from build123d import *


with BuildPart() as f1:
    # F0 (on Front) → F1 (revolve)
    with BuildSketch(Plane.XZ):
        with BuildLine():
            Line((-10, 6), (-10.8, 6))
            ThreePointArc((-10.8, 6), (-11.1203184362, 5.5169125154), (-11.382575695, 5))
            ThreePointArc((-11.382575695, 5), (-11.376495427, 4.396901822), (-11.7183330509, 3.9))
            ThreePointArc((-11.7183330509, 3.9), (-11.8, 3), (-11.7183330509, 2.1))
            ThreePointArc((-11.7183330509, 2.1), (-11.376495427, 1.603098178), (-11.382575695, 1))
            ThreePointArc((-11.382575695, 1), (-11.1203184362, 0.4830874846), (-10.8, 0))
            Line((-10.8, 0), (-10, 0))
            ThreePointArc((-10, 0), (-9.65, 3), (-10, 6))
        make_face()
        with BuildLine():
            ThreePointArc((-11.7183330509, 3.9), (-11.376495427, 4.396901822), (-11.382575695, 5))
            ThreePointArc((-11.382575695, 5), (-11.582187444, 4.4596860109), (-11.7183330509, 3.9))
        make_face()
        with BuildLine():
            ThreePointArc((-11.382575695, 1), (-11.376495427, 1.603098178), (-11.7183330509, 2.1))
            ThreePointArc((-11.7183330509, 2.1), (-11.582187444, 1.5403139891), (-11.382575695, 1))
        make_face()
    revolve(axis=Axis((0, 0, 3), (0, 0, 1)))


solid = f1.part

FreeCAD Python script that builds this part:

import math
import FreeCAD as App
import Part
import Sketcher

V = App.Vector

doc = App.newDocument("Part")
body = doc.addObject("PartDesign::Body", "Body")

# Sketch on XZ plane
sketch1 = doc.addObject("Sketcher::SketchObject", "Sketch")
body.addObject(sketch1)
sketch1.AttachmentSupport = (doc.XZ_Plane, [""])
sketch1.MapMode = "FlatFace"
sketch1.addGeometry([
    Part.LineSegment(V(-10, 6, 0), V(-10.8, 6, 0)),  # 0
    Part.ArcOfCircle(Part.Circle(V(-6.8, 3, 0), V(0, 0, 1), 5), math.radians(143.13), math.radians(156.42)),  # 1
    Part.ArcOfCircle(Part.Circle(V(-6.8, 3, 0), V(0, 0, 1), 5), math.radians(156.42), math.radians(169.63)),  # 2
    Part.ArcOfCircle(Part.Circle(V(-6.8, 3, 0), V(0, 0, 1), 5), math.radians(170), math.radians(190)),  # 3
    Part.ArcOfCircle(Part.Circle(V(-6.8, 3, 0), V(0, 0, 1), 5), math.radians(-169.63), math.radians(-156.42)),  # 4
    Part.ArcOfCircle(Part.Circle(V(-6.8, 3, 0), V(0, 0, 1), 5), math.radians(-156.42), math.radians(-143.13)),  # 5
    Part.LineSegment(V(-10.8, 0, 0), V(-10, 0, 0)),  # 6
    Part.ArcOfCircle(Part.Circle(V(-22.7, 3, 0), V(0, 0, 1), 13), math.radians(-13), math.radians(13)),  # 7
], False)
sketch1.addConstraint([
    Sketcher.Constraint("Coincident", 0, 2, 1, 1),
    Sketcher.Constraint("Tangent", 1, 2, 2, 1),
    Sketcher.Constraint("Tangent", 2, 2, 3, 1),
    Sketcher.Constraint("Tangent", 3, 2, 4, 1),
    Sketcher.Constraint("Tangent", 4, 2, 5, 1),
    Sketcher.Constraint("Coincident", 5, 2, 6, 1),
    Sketcher.Constraint("Coincident", 6, 2, 7, 1),
    Sketcher.Constraint("Coincident", 7, 2, 0, 1),
    Sketcher.Constraint("Horizontal", 0),
    Sketcher.Constraint("Horizontal", 6),
    Sketcher.Constraint("Coincident", 3, 3, 1, 3),
    Sketcher.Constraint("Coincident", 5, 3, 1, 3),
    Sketcher.Constraint("PointOnObject", 5, 2, -1),
    Sketcher.Constraint("Horizontal", 5, 3, 7, 3),
    Sketcher.Constraint("Vertical", 2, 2, 3, 2),
    Sketcher.Constraint("Vertical", 1, 2, 4, 2),
    Sketcher.Constraint("Vertical", 0, 2, 5, 2),
    Sketcher.Constraint("Radius", 1, 5.0),
    Sketcher.Constraint("DistanceX", 0, 2, 0, 1, 0.8),
    Sketcher.Constraint("DistanceY", -1, 1, 1, 3, 3.0),
    Sketcher.Constraint("DistanceY", -1, 1, 1, 2, 5.0),
    Sketcher.Constraint("DistanceX", 6, 2, -1, 1, 10.0),
    Sketcher.Constraint("DistanceY", -1, 1, 2, 2, 3.9),
    Sketcher.Constraint("Radius", 7, 13.032143),
])
revolution = doc.addObject("PartDesign::Revolution", "Revolution")
body.addObject(revolution)
revolution.Profile = sketch1
revolution.ReferenceAxis = (sketch1, ["V_Axis"])
revolution.Angle = 360

doc.recompute()
